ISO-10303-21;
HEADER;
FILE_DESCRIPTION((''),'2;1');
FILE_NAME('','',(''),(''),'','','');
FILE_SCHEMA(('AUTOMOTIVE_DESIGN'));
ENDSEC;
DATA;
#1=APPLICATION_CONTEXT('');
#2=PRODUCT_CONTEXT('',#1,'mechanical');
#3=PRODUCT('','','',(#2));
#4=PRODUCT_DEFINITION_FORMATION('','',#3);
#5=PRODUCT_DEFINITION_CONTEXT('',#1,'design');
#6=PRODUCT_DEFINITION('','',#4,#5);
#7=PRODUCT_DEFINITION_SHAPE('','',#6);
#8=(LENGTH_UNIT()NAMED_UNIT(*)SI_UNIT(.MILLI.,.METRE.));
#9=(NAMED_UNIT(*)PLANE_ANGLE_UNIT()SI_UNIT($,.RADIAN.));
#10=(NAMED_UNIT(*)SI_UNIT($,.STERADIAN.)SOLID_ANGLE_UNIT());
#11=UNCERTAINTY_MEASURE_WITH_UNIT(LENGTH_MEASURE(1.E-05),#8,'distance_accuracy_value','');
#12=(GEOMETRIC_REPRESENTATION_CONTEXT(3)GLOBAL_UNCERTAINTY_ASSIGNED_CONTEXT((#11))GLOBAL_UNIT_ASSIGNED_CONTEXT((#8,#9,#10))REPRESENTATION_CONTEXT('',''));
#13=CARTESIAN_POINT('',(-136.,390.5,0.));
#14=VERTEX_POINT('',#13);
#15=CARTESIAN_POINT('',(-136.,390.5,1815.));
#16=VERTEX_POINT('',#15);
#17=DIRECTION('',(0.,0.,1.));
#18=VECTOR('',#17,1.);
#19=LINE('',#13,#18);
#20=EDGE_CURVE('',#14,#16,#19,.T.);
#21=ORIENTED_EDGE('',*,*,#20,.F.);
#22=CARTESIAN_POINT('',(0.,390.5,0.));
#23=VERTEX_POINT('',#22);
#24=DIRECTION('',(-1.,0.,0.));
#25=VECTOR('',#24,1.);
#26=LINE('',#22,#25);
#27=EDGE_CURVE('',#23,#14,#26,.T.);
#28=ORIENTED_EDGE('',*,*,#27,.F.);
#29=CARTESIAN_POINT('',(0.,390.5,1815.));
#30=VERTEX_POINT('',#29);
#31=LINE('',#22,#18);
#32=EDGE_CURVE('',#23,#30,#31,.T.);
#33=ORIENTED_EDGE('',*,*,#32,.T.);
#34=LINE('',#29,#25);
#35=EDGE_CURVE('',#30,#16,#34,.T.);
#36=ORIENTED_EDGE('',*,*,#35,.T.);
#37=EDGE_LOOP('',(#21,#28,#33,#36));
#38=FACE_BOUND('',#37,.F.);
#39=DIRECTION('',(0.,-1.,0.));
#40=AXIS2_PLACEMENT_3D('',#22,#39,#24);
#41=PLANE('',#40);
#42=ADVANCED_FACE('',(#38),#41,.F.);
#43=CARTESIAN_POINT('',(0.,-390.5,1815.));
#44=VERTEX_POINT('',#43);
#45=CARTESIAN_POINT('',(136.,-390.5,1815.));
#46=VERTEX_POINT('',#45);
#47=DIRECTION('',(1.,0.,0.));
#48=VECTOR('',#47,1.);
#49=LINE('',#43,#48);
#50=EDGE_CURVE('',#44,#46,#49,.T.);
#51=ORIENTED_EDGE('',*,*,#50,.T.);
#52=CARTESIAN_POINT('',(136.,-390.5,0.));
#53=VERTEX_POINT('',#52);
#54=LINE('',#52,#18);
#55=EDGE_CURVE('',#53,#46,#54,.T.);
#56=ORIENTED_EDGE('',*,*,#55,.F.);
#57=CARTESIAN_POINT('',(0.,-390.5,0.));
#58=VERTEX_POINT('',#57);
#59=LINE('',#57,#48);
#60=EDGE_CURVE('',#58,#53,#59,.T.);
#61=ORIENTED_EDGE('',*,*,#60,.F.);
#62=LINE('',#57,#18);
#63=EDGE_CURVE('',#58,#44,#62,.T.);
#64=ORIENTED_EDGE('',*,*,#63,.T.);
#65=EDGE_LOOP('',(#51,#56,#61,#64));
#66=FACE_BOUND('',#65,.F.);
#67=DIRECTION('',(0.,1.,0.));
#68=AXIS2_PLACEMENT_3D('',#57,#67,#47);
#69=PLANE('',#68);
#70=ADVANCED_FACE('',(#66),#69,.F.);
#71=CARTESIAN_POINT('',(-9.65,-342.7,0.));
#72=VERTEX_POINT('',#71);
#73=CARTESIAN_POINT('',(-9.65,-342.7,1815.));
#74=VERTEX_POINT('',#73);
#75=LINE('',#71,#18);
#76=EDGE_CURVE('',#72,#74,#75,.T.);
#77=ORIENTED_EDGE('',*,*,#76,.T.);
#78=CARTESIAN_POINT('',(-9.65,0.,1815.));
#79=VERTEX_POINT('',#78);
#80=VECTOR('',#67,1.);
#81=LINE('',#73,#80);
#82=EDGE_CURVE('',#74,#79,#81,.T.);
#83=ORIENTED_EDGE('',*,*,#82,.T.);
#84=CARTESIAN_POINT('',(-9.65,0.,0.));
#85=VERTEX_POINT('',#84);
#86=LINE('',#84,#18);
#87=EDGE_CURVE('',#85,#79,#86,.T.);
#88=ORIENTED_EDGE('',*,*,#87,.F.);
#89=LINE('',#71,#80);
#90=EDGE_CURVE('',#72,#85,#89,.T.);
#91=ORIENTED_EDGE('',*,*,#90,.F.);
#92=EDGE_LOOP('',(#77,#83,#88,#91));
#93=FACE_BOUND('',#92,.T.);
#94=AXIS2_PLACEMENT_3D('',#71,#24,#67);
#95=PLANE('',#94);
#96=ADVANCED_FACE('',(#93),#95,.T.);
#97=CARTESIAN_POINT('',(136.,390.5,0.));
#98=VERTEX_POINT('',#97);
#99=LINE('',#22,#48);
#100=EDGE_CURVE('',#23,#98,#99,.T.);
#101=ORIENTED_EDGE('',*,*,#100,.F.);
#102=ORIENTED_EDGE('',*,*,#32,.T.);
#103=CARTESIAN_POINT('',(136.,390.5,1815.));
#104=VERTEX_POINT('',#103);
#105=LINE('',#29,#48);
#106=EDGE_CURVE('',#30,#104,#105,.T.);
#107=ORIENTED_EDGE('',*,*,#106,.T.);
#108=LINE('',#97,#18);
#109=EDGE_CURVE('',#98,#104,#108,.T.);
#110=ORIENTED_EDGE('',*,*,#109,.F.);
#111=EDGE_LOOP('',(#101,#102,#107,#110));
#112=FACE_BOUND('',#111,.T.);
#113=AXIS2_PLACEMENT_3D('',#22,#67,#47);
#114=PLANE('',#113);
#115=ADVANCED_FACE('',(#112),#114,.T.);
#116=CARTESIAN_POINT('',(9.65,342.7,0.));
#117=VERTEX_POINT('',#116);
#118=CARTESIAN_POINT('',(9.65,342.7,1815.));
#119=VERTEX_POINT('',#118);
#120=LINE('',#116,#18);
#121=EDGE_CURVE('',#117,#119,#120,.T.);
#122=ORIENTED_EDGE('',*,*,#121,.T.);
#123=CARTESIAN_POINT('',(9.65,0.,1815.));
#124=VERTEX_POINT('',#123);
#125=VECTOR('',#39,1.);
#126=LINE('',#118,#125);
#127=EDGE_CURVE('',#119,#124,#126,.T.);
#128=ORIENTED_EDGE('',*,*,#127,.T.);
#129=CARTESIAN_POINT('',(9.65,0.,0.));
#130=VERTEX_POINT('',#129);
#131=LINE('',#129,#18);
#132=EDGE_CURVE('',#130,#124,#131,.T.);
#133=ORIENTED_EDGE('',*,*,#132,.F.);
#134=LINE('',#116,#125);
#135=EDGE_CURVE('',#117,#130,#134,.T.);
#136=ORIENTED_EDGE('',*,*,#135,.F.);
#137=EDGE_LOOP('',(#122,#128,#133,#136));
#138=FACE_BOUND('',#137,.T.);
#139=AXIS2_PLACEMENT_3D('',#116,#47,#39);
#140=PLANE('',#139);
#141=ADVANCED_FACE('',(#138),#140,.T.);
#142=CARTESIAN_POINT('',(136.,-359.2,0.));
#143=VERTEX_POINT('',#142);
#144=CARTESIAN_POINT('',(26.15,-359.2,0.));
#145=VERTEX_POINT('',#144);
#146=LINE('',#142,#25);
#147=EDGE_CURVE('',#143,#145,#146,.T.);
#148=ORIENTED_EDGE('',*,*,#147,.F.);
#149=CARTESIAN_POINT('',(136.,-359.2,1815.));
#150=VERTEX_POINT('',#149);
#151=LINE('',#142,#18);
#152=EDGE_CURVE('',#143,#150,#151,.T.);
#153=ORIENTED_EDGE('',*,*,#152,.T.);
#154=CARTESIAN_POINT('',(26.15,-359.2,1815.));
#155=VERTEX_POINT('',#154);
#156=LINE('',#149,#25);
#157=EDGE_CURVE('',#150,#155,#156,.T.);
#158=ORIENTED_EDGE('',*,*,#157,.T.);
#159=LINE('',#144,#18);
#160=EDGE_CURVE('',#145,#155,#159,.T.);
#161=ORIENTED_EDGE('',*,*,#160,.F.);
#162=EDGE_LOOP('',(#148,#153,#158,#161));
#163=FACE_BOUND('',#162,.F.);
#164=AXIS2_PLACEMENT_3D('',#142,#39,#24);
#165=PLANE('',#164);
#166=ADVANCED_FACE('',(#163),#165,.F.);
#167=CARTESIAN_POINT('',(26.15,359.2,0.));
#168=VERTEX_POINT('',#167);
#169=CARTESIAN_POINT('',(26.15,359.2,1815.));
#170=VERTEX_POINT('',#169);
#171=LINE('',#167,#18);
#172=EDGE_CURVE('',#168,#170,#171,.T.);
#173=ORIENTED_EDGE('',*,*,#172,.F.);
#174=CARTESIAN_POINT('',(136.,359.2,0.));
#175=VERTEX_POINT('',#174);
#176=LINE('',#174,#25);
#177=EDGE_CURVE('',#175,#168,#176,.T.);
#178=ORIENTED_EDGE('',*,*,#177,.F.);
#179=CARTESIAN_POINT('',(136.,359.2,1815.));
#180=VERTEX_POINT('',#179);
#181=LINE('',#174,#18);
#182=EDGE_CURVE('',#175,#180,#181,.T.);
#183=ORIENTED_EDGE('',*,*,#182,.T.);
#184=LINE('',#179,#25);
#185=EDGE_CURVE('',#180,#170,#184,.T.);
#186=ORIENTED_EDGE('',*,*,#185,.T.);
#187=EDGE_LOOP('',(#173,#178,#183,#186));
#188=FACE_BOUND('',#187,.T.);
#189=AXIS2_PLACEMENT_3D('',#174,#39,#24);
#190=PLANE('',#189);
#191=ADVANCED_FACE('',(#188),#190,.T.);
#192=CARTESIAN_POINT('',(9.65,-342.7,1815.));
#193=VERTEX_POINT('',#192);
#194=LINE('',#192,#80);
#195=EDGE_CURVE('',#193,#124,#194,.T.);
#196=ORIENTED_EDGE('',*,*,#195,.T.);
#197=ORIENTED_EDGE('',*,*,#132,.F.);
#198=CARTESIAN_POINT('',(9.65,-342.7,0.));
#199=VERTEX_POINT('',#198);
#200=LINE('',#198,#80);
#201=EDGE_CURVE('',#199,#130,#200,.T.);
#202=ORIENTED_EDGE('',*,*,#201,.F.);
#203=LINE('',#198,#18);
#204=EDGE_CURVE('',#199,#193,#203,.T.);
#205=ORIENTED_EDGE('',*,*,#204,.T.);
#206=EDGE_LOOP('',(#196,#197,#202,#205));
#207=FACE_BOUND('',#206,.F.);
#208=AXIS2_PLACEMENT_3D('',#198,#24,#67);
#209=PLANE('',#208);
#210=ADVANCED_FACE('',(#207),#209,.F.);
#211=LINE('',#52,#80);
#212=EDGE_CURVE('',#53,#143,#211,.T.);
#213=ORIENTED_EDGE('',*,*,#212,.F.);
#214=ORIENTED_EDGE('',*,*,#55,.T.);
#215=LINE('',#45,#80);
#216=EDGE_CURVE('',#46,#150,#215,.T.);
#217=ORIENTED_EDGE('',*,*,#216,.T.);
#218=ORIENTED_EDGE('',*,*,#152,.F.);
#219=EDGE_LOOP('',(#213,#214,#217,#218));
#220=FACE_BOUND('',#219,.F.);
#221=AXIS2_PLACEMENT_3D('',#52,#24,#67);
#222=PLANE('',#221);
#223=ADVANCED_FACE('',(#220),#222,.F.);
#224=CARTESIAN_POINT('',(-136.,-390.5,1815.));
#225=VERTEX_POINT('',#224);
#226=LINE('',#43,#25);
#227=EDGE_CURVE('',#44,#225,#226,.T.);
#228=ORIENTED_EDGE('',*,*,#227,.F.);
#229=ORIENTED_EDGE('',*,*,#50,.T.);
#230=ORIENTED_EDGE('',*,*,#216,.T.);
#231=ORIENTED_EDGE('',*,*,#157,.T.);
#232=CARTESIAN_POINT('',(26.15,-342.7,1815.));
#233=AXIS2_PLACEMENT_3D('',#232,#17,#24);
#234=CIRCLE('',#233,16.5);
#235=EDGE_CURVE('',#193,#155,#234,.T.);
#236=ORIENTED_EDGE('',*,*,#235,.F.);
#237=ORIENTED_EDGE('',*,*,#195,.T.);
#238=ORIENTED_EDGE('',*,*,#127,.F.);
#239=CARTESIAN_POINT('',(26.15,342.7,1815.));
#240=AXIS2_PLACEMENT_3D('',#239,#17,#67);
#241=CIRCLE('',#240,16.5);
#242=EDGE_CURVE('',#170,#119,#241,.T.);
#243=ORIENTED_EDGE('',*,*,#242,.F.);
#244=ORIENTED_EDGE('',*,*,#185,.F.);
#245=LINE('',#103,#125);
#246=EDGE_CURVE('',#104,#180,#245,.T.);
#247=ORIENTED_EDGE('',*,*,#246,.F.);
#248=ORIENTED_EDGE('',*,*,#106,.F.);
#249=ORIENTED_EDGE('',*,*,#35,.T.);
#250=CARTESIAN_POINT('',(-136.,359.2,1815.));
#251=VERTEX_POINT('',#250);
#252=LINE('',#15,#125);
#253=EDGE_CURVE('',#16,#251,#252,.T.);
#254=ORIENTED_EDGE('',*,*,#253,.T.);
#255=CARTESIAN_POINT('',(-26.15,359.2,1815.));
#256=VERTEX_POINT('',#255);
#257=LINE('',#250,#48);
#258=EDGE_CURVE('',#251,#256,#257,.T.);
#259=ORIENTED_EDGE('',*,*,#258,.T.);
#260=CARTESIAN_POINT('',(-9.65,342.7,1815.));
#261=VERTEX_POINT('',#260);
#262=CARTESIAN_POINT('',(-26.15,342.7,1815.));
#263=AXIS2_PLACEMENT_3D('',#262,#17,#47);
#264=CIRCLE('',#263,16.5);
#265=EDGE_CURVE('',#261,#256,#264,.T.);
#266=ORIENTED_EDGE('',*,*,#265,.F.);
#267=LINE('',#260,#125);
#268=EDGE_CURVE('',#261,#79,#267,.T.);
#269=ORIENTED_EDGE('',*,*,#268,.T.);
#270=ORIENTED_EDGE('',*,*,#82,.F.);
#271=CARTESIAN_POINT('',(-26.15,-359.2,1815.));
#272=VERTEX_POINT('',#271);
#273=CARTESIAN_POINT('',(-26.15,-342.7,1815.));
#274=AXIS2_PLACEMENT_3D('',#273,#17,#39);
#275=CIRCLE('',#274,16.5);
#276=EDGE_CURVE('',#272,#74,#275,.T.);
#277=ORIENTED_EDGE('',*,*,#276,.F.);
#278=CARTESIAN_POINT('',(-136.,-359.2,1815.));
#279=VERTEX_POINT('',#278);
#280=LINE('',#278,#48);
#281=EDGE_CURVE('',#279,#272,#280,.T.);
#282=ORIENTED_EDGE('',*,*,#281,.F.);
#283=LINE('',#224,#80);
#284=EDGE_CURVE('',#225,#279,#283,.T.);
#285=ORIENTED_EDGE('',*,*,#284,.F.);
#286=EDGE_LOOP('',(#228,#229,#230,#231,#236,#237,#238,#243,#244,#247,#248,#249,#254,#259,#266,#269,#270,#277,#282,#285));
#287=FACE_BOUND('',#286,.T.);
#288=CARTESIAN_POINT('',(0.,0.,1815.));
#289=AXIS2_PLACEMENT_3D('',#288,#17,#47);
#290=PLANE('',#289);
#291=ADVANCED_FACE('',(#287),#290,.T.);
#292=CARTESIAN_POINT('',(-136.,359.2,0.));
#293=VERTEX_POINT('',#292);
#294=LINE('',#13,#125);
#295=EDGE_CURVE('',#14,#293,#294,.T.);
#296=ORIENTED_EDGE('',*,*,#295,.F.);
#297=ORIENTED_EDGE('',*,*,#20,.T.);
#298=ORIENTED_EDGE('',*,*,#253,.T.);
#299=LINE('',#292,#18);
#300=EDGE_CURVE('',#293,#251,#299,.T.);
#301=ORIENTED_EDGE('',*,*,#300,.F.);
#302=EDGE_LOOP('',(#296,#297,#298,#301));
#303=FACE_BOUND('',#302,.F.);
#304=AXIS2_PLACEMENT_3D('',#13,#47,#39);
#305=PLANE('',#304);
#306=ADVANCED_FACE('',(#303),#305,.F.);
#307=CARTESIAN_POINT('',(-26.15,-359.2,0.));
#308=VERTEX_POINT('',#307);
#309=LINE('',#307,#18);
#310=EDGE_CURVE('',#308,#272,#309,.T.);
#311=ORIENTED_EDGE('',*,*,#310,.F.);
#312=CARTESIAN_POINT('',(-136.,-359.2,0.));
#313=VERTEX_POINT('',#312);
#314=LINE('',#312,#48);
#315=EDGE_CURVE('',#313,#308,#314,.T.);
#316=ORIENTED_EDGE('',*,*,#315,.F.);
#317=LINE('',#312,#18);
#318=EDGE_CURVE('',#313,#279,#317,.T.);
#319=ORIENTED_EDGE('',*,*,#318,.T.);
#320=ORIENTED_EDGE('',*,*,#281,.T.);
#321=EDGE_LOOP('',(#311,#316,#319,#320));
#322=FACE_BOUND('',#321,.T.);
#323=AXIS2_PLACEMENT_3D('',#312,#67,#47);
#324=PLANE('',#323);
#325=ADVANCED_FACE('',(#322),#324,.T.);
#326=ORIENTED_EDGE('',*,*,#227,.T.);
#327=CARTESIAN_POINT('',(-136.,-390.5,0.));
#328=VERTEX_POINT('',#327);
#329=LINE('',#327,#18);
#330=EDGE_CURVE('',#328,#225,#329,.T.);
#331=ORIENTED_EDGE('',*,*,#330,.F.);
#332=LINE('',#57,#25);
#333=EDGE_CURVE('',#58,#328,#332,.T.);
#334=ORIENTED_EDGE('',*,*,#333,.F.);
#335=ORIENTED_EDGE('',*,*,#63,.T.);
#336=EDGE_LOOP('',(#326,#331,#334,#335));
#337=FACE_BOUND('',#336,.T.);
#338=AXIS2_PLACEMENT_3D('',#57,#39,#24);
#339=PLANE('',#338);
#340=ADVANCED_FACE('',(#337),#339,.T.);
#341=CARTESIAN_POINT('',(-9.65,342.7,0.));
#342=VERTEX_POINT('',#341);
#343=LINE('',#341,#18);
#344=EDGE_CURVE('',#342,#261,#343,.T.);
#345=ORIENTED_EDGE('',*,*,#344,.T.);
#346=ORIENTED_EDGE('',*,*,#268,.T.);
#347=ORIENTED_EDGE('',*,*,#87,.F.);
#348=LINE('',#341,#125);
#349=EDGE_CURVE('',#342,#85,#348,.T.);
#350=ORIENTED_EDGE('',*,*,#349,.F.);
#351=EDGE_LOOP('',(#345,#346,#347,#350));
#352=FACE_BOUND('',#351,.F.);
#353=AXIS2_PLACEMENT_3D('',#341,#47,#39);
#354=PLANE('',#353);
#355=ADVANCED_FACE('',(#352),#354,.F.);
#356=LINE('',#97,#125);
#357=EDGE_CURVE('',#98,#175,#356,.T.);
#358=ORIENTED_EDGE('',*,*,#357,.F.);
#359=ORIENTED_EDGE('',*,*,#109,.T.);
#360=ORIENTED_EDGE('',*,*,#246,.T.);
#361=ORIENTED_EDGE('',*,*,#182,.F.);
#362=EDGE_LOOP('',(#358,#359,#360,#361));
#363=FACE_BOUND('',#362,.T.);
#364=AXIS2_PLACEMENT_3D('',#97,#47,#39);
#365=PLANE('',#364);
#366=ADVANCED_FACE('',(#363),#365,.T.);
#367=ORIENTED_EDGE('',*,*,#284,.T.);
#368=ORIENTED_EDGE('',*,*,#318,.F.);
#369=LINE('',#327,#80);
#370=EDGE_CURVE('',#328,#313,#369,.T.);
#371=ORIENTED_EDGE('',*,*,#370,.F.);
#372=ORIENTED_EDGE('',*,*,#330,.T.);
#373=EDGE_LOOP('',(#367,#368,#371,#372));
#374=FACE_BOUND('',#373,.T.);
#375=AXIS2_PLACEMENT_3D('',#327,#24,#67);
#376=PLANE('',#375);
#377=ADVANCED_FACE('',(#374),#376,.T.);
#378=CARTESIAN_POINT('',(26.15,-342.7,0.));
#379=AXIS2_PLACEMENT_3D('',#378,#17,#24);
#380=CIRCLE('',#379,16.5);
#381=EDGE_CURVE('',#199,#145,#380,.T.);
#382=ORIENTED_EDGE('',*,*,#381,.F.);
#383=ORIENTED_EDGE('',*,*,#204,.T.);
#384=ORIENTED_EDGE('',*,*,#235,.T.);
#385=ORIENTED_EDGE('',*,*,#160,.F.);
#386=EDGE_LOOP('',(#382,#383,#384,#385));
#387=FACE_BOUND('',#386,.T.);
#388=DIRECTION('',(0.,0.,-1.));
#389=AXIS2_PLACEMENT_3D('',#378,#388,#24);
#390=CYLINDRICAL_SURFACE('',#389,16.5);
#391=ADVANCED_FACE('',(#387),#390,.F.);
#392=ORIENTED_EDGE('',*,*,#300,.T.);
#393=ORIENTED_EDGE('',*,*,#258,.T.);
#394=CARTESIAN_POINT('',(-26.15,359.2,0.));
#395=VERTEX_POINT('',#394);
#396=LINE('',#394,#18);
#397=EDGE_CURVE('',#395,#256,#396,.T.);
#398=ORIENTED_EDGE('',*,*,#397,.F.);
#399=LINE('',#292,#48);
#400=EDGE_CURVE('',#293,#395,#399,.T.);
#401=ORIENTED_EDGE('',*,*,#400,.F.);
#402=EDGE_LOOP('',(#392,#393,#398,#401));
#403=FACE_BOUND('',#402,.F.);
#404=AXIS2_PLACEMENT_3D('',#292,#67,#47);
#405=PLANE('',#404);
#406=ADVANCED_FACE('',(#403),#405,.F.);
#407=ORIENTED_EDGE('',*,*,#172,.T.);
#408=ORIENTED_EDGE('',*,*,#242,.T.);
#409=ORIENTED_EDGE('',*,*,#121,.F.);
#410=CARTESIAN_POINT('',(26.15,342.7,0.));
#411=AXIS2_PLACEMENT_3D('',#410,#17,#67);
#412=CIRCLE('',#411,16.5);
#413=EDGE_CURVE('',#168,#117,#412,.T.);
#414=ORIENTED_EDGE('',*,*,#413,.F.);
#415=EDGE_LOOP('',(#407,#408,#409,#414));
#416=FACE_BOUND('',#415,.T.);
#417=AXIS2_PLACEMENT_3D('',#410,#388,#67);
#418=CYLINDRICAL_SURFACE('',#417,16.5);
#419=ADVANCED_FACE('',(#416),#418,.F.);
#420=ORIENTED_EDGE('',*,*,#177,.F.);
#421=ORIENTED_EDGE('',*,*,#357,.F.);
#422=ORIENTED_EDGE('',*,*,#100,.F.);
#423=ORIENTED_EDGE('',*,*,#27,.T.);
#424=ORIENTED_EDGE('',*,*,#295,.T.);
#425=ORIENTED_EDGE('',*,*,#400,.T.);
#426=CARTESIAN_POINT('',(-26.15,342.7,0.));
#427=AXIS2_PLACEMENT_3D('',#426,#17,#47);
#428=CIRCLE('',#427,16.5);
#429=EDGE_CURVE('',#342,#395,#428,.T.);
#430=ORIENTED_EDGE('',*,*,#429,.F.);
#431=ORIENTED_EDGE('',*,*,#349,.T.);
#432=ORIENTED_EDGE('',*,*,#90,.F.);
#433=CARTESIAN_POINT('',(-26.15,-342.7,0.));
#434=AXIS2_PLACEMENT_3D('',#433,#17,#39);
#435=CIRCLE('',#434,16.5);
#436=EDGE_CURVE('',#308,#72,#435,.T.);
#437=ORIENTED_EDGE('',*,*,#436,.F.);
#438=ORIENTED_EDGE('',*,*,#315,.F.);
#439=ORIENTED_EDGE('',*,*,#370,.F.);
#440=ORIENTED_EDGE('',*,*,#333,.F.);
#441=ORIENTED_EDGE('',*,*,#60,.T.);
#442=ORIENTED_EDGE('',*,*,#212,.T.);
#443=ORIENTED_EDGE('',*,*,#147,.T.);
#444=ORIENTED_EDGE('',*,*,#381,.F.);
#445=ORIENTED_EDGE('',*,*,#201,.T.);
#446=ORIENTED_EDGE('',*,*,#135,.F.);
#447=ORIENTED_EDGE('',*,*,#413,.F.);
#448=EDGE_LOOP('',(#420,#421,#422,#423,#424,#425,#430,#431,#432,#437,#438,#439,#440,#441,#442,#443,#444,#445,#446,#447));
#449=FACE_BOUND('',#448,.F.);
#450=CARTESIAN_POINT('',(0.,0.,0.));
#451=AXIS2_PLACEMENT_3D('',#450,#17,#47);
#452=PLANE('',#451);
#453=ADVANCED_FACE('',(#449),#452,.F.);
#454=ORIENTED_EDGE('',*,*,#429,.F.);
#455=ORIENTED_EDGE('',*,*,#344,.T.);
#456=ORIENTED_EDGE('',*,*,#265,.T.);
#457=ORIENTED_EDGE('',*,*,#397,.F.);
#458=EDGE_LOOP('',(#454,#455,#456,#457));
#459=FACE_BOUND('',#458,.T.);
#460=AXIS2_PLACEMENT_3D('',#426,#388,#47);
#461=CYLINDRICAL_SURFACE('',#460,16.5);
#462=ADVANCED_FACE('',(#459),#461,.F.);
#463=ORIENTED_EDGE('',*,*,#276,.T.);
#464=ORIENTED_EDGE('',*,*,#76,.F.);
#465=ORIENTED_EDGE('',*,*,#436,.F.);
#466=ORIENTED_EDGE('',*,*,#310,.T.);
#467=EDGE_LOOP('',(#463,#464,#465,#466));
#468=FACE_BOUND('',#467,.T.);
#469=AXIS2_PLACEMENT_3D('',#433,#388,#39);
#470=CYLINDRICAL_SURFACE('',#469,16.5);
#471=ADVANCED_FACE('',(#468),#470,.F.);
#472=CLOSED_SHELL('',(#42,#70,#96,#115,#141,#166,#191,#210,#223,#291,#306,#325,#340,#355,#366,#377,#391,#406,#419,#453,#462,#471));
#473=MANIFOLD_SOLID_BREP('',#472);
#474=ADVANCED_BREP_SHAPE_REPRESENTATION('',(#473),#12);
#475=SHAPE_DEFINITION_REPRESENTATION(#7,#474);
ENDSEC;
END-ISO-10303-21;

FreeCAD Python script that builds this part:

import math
import FreeCAD as App
import Part
import Sketcher
from FreeCAD import Vector
Q = App.Units.Quantity

doc = App.newDocument("Part")
body = doc.addObject("PartDesign::Body", "Body")

sketch1 = doc.addObject("Sketcher::SketchObject", "Sketch")
body.addObject(sketch1)
sketch1.AttachmentSupport = (doc.XY_Plane, [""])
sketch1.MapMode = "FlatFace"
sketch1.addGeometry([
    Part.LineSegment(Vector(-136, -359.2, 0), Vector(-136, -390.5, 0)),
    Part.LineSegment(Vector(-136, -390.5, 0), Vector(136, -390.5, 0)),
    Part.LineSegment(Vector(136, -390.5, 0), Vector(136, -359.2, 0)),
    Part.LineSegment(Vector(136, -359.2, 0), Vector(26.15, -359.2, 0)),
    Part.ArcOfCircle(Part.Circle(Vector(26.15, -342.7, 0), Vector(0, 0, 1), 16.5), math.radians(180), math.radians(270)),
    Part.LineSegment(Vector(9.65, -342.7, 0), Vector(9.65, 342.7, 0)),
    Part.ArcOfCircle(Part.Circle(Vector(26.15, 342.7, 0), Vector(0, 0, 1), 16.5), math.radians(90), math.radians(180)),
    Part.LineSegment(Vector(26.15, 359.2, 0), Vector(136, 359.2, 0)),
    Part.LineSegment(Vector(136, 359.2, 0), Vector(136, 390.5, 0)),
    Part.LineSegment(Vector(136, 390.5, 0), Vector(-136, 390.5, 0)),
    Part.LineSegment(Vector(-136, 390.5, 0), Vector(-136, 359.2, 0)),
    Part.LineSegment(Vector(-136, 359.2, 0), Vector(-26.15, 359.2, 0)),
    Part.ArcOfCircle(Part.Circle(Vector(-26.15, 342.7, 0), Vector(0, 0, 1), 16.5), math.radians(0), math.radians(90)),
    Part.LineSegment(Vector(-9.65, 342.7, 0), Vector(-9.65, -342.7, 0)),
    Part.ArcOfCircle(Part.Circle(Vector(-26.15, -342.7, 0), Vector(0, 0, 1), 16.5), math.radians(-90), math.radians(0)),
    Part.LineSegment(Vector(-26.15, -359.2, 0), Vector(-136, -359.2, 0)),
], False)
sketch1.addConstraint([
    Sketcher.Constraint("Coincident", 0, 2, 1, 1),
    Sketcher.Constraint("Coincident", 1, 2, 2, 1),
    Sketcher.Constraint("Coincident", 2, 2, 3, 1),
    Sketcher.Constraint("Tangent", 3, 2, 4, 2),
    Sketcher.Constraint("Tangent", 4, 1, 5, 1),
    Sketcher.Constraint("Tangent", 5, 2, 6, 2),
    Sketcher.Constraint("Tangent", 6, 1, 7, 1),
    Sketcher.Constraint("Coincident", 7, 2, 8, 1),
    Sketcher.Constraint("Coincident", 8, 2, 9, 1),
    Sketcher.Constraint("Coincident", 9, 2, 10, 1),
    Sketcher.Constraint("Coincident", 10, 2, 11, 1),
    Sketcher.Constraint("Tangent", 11, 2, 12, 2),
    Sketcher.Constraint("Tangent", 12, 1, 13, 1),
    Sketcher.Constraint("Tangent", 13, 2, 14, 2),
    Sketcher.Constraint("Tangent", 14, 1, 15, 1),
    Sketcher.Constraint("Coincident", 15, 2, 0, 1),
    Sketcher.Constraint("Vertical", 0),
    Sketcher.Constraint("Horizontal", 1),
    Sketcher.Constraint("Vertical", 2),
    Sketcher.Constraint("Horizontal", 3),
    Sketcher.Constraint("Vertical", 5),
    Sketcher.Constraint("Horizontal", 7),
    Sketcher.Constraint("Vertical", 8),
    Sketcher.Constraint("Horizontal", 9),
    Sketcher.Constraint("Vertical", 10),
    Sketcher.Constraint("Horizontal", 11),
    Sketcher.Constraint("Vertical", 13),
    Sketcher.Constraint("Horizontal", 15),
    Sketcher.Constraint("Equal", 4, 6),
    Sketcher.Constraint("Equal", 6, 12),
    Sketcher.Constraint("Equal", 12, 14),
    Sketcher.Constraint("Symmetric", 4, 3, 12, 3, -1, 1),
    Sketcher.Constraint("Symmetric", 0, 2, 8, 2, -1, 1),
    Sketcher.Constraint("Symmetric", 7, 2, 10, 2, -2),
    Sketcher.Constraint("Symmetric", 2, 2, 15, 2, -2),
    Sketcher.Constraint("Radius", 4, Q("16.5 mm")),
    Sketcher.Constraint("DistanceY", 0, 2, 0, 1, Q("31.3 mm")),
    Sketcher.Constraint("DistanceX", 0, 2, -1, 1, Q("136 mm")),
    Sketcher.Constraint("DistanceY", 0, 2, -1, 1, Q("390.5 mm")),
    Sketcher.Constraint("DistanceX", -1, 1, 4, 1, Q("9.65 mm")),
])
pad1 = doc.addObject("PartDesign::Pad", "Pad")
body.addObject(pad1)
pad1.Profile = sketch1
pad1.Length = 1815

doc.recompute()
